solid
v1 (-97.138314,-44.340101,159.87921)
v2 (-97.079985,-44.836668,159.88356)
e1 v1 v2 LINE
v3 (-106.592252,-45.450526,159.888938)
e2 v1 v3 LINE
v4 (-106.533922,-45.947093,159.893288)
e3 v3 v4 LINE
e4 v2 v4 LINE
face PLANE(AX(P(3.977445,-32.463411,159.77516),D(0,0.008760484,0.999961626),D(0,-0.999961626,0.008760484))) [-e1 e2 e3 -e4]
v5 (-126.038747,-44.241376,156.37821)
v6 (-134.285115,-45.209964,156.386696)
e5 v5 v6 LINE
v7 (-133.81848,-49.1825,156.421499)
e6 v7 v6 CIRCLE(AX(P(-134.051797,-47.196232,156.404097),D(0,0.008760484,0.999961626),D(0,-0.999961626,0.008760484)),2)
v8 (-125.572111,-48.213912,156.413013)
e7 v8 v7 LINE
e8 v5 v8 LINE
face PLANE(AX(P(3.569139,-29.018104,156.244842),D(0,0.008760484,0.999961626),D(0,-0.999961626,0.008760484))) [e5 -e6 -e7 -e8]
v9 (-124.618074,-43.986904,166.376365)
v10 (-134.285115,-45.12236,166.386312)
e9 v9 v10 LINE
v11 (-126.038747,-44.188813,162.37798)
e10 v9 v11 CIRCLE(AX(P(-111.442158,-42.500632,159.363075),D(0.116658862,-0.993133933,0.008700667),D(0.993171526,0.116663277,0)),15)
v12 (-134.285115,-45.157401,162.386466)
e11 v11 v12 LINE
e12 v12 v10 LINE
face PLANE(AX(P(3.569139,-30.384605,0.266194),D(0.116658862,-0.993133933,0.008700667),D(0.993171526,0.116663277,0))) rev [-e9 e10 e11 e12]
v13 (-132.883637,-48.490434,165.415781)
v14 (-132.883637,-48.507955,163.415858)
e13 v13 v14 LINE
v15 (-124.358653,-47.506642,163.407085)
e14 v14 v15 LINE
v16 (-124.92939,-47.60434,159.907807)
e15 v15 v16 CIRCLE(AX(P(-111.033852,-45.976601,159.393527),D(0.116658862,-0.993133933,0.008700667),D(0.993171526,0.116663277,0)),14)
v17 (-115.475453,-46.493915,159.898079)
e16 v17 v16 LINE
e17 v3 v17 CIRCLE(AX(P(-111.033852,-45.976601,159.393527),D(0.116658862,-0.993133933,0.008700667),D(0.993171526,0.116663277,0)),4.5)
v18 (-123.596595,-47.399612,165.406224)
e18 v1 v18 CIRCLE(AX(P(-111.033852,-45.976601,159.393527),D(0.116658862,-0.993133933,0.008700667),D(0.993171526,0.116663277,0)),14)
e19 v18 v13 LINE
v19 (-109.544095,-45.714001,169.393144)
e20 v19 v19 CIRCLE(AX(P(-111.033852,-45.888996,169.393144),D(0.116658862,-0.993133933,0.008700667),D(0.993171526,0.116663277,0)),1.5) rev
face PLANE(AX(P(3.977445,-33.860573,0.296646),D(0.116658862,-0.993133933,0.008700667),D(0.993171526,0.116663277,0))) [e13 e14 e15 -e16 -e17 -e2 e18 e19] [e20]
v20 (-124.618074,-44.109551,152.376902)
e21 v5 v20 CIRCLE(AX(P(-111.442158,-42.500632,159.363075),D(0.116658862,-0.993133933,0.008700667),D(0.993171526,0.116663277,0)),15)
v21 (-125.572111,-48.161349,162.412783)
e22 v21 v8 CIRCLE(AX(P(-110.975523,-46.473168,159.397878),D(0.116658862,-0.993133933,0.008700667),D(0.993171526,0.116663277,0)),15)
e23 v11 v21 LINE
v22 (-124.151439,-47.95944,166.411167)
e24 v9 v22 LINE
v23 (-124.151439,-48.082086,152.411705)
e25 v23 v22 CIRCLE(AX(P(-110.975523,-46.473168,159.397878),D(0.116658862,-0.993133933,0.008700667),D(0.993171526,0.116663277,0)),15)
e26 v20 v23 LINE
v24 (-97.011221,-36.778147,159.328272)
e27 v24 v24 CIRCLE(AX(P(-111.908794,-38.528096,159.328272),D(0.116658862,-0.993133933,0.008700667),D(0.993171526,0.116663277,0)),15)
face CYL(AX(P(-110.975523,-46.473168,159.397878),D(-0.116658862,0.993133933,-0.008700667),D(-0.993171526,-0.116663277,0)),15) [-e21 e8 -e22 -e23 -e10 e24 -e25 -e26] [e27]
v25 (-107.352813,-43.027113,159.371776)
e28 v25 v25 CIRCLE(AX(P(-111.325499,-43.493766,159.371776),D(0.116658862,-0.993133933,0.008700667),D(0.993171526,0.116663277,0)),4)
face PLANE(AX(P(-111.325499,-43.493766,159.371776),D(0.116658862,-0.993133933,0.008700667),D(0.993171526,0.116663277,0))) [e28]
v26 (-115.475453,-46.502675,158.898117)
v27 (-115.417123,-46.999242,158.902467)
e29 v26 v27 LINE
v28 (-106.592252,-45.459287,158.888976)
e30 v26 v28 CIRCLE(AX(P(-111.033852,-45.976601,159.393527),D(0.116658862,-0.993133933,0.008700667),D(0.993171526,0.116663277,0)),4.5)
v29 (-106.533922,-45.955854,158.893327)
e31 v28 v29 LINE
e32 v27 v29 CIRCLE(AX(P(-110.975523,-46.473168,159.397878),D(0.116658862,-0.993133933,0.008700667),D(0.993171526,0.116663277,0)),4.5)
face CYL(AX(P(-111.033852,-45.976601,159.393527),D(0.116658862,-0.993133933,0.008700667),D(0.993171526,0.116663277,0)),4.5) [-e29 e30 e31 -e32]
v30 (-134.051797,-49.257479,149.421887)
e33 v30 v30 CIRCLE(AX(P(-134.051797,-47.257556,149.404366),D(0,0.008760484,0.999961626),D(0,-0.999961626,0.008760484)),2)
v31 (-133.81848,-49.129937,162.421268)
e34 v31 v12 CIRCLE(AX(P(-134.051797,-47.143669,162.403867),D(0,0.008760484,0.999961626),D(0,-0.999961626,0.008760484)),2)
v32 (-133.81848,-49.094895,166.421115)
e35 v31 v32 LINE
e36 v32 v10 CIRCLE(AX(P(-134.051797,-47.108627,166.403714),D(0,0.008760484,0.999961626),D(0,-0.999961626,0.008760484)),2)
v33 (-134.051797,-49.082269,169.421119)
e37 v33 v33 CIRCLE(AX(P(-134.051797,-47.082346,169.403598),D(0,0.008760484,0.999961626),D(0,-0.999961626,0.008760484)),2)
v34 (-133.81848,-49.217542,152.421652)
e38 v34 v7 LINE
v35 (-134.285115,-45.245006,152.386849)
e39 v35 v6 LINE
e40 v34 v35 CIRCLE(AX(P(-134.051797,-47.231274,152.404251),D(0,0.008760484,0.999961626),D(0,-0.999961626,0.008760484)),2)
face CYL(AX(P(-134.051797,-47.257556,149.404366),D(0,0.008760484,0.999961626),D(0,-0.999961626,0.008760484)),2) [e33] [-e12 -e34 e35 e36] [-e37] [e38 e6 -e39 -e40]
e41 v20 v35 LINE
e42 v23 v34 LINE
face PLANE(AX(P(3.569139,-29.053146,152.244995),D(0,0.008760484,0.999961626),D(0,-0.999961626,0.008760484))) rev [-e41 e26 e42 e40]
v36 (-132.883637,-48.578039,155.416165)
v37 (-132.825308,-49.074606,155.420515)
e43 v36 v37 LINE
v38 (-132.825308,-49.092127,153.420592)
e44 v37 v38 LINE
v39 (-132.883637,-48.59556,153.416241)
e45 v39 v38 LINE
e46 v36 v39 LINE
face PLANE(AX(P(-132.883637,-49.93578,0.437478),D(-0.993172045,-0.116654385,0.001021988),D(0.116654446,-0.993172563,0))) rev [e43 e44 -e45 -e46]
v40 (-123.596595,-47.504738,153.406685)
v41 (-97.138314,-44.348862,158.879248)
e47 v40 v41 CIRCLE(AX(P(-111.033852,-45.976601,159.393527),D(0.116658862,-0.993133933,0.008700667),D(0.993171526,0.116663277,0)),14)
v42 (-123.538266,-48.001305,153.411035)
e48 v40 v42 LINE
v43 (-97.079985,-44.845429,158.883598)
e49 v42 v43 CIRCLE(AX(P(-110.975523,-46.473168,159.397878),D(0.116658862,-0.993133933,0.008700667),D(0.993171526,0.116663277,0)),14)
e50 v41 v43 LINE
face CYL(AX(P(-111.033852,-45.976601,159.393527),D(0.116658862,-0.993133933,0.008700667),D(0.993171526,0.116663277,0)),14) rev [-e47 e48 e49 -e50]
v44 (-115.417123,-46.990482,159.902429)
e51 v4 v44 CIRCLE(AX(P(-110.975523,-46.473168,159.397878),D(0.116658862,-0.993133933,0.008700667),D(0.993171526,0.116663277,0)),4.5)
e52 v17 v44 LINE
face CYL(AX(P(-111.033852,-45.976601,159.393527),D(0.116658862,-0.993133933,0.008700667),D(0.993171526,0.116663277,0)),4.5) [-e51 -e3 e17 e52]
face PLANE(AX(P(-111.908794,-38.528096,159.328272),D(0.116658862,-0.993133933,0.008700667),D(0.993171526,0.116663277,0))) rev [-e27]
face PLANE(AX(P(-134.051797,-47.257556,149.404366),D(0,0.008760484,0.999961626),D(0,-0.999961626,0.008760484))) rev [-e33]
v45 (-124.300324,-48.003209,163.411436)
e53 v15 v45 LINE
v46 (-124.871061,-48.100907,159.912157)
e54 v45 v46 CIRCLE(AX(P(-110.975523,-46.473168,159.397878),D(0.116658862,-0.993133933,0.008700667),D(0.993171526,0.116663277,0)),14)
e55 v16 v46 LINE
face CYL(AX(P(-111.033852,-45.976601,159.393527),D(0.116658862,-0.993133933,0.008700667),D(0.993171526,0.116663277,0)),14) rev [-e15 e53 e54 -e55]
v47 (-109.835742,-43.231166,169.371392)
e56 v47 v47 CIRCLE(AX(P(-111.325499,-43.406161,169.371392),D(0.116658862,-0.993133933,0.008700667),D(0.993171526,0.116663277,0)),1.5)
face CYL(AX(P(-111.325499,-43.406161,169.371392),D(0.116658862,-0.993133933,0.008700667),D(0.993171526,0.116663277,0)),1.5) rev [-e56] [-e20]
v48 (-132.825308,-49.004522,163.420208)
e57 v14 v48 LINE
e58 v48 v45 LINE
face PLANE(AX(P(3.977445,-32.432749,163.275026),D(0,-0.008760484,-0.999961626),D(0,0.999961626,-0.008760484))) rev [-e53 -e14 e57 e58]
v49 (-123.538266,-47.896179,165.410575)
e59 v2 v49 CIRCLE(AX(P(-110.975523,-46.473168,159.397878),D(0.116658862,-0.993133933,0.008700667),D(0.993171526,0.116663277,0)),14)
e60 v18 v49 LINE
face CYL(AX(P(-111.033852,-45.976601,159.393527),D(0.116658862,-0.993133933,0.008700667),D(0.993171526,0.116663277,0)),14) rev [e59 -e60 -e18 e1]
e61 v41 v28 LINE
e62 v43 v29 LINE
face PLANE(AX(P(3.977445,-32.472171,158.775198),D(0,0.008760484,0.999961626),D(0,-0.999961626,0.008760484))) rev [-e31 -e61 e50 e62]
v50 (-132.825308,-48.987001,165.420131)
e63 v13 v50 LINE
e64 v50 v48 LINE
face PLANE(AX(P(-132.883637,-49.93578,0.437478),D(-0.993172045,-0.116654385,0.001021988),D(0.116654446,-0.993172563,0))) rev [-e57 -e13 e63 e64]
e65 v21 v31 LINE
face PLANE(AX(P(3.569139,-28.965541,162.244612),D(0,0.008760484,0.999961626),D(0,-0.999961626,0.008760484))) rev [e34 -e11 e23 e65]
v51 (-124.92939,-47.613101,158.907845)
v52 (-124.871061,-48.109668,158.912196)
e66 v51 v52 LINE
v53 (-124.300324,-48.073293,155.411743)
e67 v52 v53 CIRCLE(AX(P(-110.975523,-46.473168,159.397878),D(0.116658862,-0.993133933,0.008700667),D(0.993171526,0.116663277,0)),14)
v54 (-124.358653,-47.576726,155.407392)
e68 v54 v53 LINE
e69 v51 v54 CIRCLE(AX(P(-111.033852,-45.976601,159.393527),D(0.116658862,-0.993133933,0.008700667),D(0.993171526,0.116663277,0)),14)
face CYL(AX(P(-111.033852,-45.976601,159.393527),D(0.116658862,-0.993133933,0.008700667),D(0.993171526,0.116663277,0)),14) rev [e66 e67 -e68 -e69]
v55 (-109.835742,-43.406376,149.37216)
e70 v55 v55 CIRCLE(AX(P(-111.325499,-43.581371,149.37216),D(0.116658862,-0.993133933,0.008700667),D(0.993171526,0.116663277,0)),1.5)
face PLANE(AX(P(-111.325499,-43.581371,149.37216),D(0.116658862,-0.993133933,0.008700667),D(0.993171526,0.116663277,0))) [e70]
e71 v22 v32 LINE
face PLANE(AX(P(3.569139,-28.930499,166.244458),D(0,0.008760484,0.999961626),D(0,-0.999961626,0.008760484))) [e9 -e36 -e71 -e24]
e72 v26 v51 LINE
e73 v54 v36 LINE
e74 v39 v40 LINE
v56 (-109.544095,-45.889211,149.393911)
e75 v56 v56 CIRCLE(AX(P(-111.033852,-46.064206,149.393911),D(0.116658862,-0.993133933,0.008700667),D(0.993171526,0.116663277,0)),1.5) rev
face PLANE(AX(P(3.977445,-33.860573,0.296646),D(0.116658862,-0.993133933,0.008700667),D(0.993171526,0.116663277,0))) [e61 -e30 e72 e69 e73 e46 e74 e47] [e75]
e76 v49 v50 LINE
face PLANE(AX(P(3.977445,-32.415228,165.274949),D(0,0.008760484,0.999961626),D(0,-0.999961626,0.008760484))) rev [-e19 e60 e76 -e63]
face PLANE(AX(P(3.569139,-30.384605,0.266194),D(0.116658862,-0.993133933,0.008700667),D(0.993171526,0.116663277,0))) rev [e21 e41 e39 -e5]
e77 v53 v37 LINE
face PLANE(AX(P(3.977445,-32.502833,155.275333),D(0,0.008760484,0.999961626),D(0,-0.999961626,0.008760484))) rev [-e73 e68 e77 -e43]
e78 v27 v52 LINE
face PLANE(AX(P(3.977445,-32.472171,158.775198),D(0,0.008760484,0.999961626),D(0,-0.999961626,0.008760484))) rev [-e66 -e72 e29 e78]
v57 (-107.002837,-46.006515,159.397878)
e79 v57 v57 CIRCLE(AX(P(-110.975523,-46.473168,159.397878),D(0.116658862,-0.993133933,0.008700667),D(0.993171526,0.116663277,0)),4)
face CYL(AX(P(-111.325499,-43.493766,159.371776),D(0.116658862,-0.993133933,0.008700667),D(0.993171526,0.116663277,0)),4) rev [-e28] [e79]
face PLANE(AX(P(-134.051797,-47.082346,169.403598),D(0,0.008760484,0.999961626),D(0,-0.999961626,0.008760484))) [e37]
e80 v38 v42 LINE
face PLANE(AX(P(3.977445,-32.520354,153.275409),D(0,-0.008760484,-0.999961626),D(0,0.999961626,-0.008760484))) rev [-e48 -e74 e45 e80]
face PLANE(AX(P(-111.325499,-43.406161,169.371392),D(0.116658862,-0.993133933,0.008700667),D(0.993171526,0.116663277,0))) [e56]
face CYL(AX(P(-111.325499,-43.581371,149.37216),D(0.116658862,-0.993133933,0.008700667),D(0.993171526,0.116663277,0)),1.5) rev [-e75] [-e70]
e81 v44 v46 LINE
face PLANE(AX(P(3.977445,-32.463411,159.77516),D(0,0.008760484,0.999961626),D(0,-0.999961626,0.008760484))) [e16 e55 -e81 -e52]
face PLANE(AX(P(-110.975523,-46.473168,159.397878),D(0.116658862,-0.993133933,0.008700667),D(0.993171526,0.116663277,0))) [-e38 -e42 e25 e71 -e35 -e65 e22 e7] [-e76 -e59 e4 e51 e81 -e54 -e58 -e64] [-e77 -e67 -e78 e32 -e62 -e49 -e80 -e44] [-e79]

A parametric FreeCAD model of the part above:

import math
import FreeCAD as App
import Part
import Sketcher


def add_polygon(sketch, points):
    """Adds a closed chain of lines whose ends are joined by coincident constraints."""
    first, n = sketch.GeometryCount, len(points)
    for a, b in zip(points, points[1:] + points[:1]):
        sketch.addGeometry(Part.LineSegment(App.Vector(*a, 0), App.Vector(*b, 0)), False)
    for i in range(n):
        sketch.addConstraint(Sketcher.Constraint("Coincident", first + i, 2, first + (i + 1) % n, 1))

doc = App.newDocument("Part")
body = doc.addObject("PartDesign::Body", "Body")

sketch1 = body.newObject("Sketcher::SketchObject", "Sketch")
sketch1.Placement = App.Placement(App.Vector(3.102504, -26.412069, 0.231391), App.Rotation(App.Vector(0.993172045, 0.116654385, -0.001021988), App.Vector(0, 0.008760483, 0.999961627), App.Vector(0.116658862, -0.993133933, 0.008700667), "ZXY"))
sketch1.addGeometry(Part.Circle(App.Vector(-116, 159, 0), App.Vector(0, 0, 1), 15), False)
sketch1.addConstraint(Sketcher.Constraint("Diameter", 0, 30.0))
sketch1.addConstraint(Sketcher.Constraint("DistanceX", 0, 3, -1, 1, 115.801988))
sketch1.addConstraint(Sketcher.Constraint("DistanceY", -1, 1, 0, 3, 158.984634))
pad1 = body.newObject("PartDesign::Pad", "Pad")
pad1.Profile = sketch1
pad1.Length = 8

sketch2 = body.newObject("Sketcher::SketchObject", "Sketch001")
sketch2.Placement = App.Placement(App.Vector(4.035775, -34.35714, 0.300997), App.Rotation(App.Vector(0.993172045, 0.116654385, -0.001021988), App.Vector(0, 0.008760483, 0.999961627), App.Vector(0.116658862, -0.993133933, 0.008700667), "ZXY"))
sketch2.addGeometry(Part.Circle(App.Vector(-115.8, 159, 0), App.Vector(0, 0, 1), 4), False)
sketch2.addGeometry(Part.Circle(App.Vector(-115.8, 169, 0), App.Vector(0, 0, 1), 1.5), False)
sketch2.addGeometry(Part.Circle(App.Vector(-115.8, 149, 0), App.Vector(0, 0, 1), 1.5), False)
sketch2.addConstraint(Sketcher.Constraint("Equal", 1, 2))
sketch2.addConstraint(Sketcher.Constraint("Vertical", 0, 3, 1, 3))
sketch2.addConstraint(Sketcher.Constraint("Vertical", 1, 3, 2, 3))
sketch2.addConstraint(Sketcher.Constraint("Diameter", 0, 8.0))
sketch2.addConstraint(Sketcher.Constraint("Diameter", 1, 3.0))
sketch2.addConstraint(Sketcher.Constraint("DistanceY", 0, 3, 1, 3, 10.0))
sketch2.addConstraint(Sketcher.Constraint("DistanceY", 2, 3, 0, 3, 10.0))
sketch2.addConstraint(Sketcher.Constraint("DistanceX", 0, 3, -1, 1, 115.801988))
sketch2.addConstraint(Sketcher.Constraint("DistanceY", -1, 1, 0, 3, 158.984634))
pocket1 = body.newObject("PartDesign::Pocket", "Pocket")
pocket1.Profile = sketch2
pocket1.Length = 3

sketch3 = body.newObject("Sketcher::SketchObject", "Sketch002")
sketch3.Placement = App.Placement(App.Vector(3.569139, -30.384605, 0.266194), App.Rotation(App.Vector(0.993172045, 0.116654385, -0.001021988), App.Vector(0, 0.008760483, 0.999961627), App.Vector(0.116658862, -0.993133933, 0.008700667), "ZXY"))
add_polygon(sketch3, [(-140.8, 162), (-125, 162), (-125, 166), (-140.8, 166)])
add_polygon(sketch3, [(-140.8, 156), (-140.8, 152), (-125, 152), (-125, 156)])
sketch3.addConstraint(Sketcher.Constraint("Horizontal", 0))
sketch3.addConstraint(Sketcher.Constraint("Vertical", 1))
sketch3.addConstraint(Sketcher.Constraint("Horizontal", 2))
sketch3.addConstraint(Sketcher.Constraint("Vertical", 3))
sketch3.addConstraint(Sketcher.Constraint("Vertical", 4))
sketch3.addConstraint(Sketcher.Constraint("Horizontal", 5))
sketch3.addConstraint(Sketcher.Constraint("Vertical", 6))
sketch3.addConstraint(Sketcher.Constraint("Horizontal", 7))
sketch3.addConstraint(Sketcher.Constraint("Vertical", 3, 2, 4, 2))
sketch3.addConstraint(Sketcher.Constraint("Vertical", 1, 2, 5, 2))
sketch3.addConstraint(Sketcher.Constraint("Equal", 3, 4))
sketch3.addConstraint(Sketcher.Constraint("DistanceY", 1, 1, 1, 2, 4.0))
sketch3.addConstraint(Sketcher.Constraint("DistanceY", 4, 2, 3, 2, 10.0))
sketch3.addConstraint(Sketcher.Constraint("DistanceX", 0, 1, 0, 2, 15.785077))
sketch3.addConstraint(Sketcher.Constraint("DistanceX", 0, 2, -1, 1, 125.016912))
sketch3.addConstraint(Sketcher.Constraint("DistanceY", -1, 1, 0, 2, 161.984634))
pad2 = body.newObject("PartDesign::Pad", "Pad001")
pad2.Profile = sketch3
pad2.Length = 4

sketch4 = body.newObject("Sketcher::SketchObject", "Sketch003")
sketch4.Placement = App.Placement(App.Vector(0, 1.392782, 158.978533), App.Rotation(App.Vector(1, 0, 0), App.Vector(0, 0.999961626, -0.008760484), App.Vector(0, 0.008760484, 0.999961626), "ZXY"))
sketch4.addGeometry(Part.Circle(App.Vector(-134.1, -48.6, 0), App.Vector(0, 0, 1), 2), False)
sketch4.addConstraint(Sketcher.Constraint("Diameter", 0, 4.0))
sketch4.addConstraint(Sketcher.Constraint("DistanceX", 0, 3, -1, 1, 134.051797))
sketch4.addConstraint(Sketcher.Constraint("DistanceY", 0, 3, -1, 1, 48.564597))
pad3 = body.newObject("PartDesign::Pad", "Pad002")
pad3.Profile = sketch4
pad3.Type = "TwoLengths"
pad3.Length = 10
pad3.Length2 = 10

sketch5 = body.newObject("Sketcher::SketchObject", "Sketch004")
sketch5.Placement = App.Placement(App.Vector(0, 1.480387, 168.978149), App.Rotation(App.Vector(1, 0, 0), App.Vector(0, 0.999961626, -0.008760484), App.Vector(0, 0.008760484, 0.999961626), "ZXY"))
sketch5.addGeometry(Part.LineSegment(App.Vector(-137.2, -53.5, 0), App.Vector(-133.5, -53.1, 0)), False)
sketch5.addGeometry(Part.LineSegment(App.Vector(-133.5, -53.1, 0), App.Vector(-133.8, -50.6, 0)), False)
sketch5.addGeometry(Part.ArcOfCircle(Part.Circle(App.Vector(-134.1, -48.6, 0), App.Vector(0, 0, 1), 2), math.radians(97), math.radians(277)), False)
sketch5.addGeometry(Part.LineSegment(App.Vector(-134.3, -46.6, 0), App.Vector(-134.5, -44.9, 0)), False)
sketch5.addGeometry(Part.LineSegment(App.Vector(-134.5, -44.9, 0), App.Vector(-138.2, -45.4, 0)), False)
sketch5.addGeometry(Part.LineSegment(App.Vector(-138.2, -45.4, 0), App.Vector(-137.2, -53.5, 0)), False)
sketch5.addConstraint(Sketcher.Constraint("Coincident", 0, 2, 1, 1))
sketch5.addConstraint(Sketcher.Constraint("Coincident", 1, 2, 2, 2))
sketch5.addConstraint(Sketcher.Constraint("Coincident", 2, 1, 3, 1))
sketch5.addConstraint(Sketcher.Constraint("Coincident", 3, 2, 4, 1))
sketch5.addConstraint(Sketcher.Constraint("Coincident", 4, 2, 5, 1))
sketch5.addConstraint(Sketcher.Constraint("Coincident", 5, 2, 0, 1))
sketch5.addConstraint(Sketcher.Constraint("Perpendicular", 0, 1))
sketch5.addConstraint(Sketcher.Constraint("Parallel", 1, 3))
sketch5.addConstraint(Sketcher.Constraint("Perpendicular", 3, 4))
sketch5.addConstraint(Sketcher.Constraint("Perpendicular", 4, 5))
sketch5.addConstraint(Sketcher.Constraint("Equal", 0, 4))
sketch5.addConstraint(Sketcher.Constraint("Radius", 2, 2.0))
sketch5.addConstraint(Sketcher.Constraint("DistanceY", 0, 2, -1, 1, 53.093699))
sketch5.addConstraint(Sketcher.Constraint("DistanceX", 4, 2, 3, 2, 3.6723))
sketch5.addConstraint(Sketcher.Constraint("Distance", 1, 2.560239))
sketch5.addConstraint(Sketcher.Constraint("Distance", 3, 1.66665))
sketch5.addConstraint(Sketcher.Constraint("DistanceX", 1, 2, -1, 1, 133.81848))
sketch5.addConstraint(Sketcher.Constraint("DistanceY", 1, 2, -1, 1, 50.550941))
sketch5.addConstraint(Sketcher.Constraint("DistanceX", 2, 3, -1, 1, 134.051797))
pocket2 = body.newObject("PartDesign::Pocket", "Pocket001")
pocket2.Profile = sketch5
pocket2.Length = 26

sketch6 = body.newObject("Sketcher::SketchObject", "Sketch005")
sketch6.Placement = App.Placement(App.Vector(4.035775, -34.35714, 0.300997), App.Rotation(App.Vector(0.993172045, 0.116654385, -0.001021988), App.Vector(0, 0.008760483, 0.999961627), App.Vector(0.116658862, -0.993133933, 0.008700667), "ZXY"))
sketch6.addGeometry(Part.LineSegment(App.Vector(-111.329852, 159.484634, 0), App.Vector(-101.81092, 159.484634, 0)), False)
sketch6.addGeometry(Part.ArcOfCircle(Part.Circle(App.Vector(-115.801988, 158.984634, 0), App.Vector(0, 0, 1), 14), math.radians(2.046713), math.radians(154.623066)), False)
sketch6.addGeometry(Part.LineSegment(App.Vector(-128.451099, 164.984634, 0), App.Vector(-137.801988, 164.984634, 0)), False)
sketch6.addGeometry(Part.LineSegment(App.Vector(-137.801988, 164.984634, 0), App.Vector(-137.801988, 162.984634, 0)), False)
sketch6.addGeometry(Part.LineSegment(App.Vector(-137.801988, 162.984634, 0), App.Vector(-129.218396, 162.984634, 0)), False)
sketch6.addGeometry(Part.ArcOfCircle(Part.Circle(App.Vector(-115.801988, 158.984634, 0), App.Vector(0, 0, 1), 14), math.radians(163.39845), math.radians(177.953287)), False)
sketch6.addGeometry(Part.LineSegment(App.Vector(-129.793057, 159.484634, 0), App.Vector(-120.274124, 159.484634, 0)), False)
sketch6.addGeometry(Part.ArcOfCircle(Part.Circle(App.Vector(-115.801988, 158.984634, 0), App.Vector(0, 0, 1), 4.5), math.radians(6.37937), math.radians(173.62063)), False)
sketch6.addGeometry(Part.Circle(App.Vector(-115.801988, 168.984634, 0), App.Vector(0, 0, 1), 1.5), False)
sketch6.addGeometry(Part.ArcOfCircle(Part.Circle(App.Vector(-115.801988, 158.984634, 0), App.Vector(0, 0, 1), 14), math.radians(-154.623066), math.radians(-2.046713)), False)
sketch6.addGeometry(Part.LineSegment(App.Vector(-101.81092, 158.484634, 0), App.Vector(-111.329852, 158.484634, 0)), False)
sketch6.addGeometry(Part.ArcOfCircle(Part.Circle(App.Vector(-115.801988, 158.984634, 0), App.Vector(0, 0, 1), 4.5), math.radians(-173.62063), math.radians(-6.37937)), False)
sketch6.addGeometry(Part.LineSegment(App.Vector(-120.274124, 158.484634, 0), App.Vector(-129.793057, 158.484634, 0)), False)
sketch6.addGeometry(Part.ArcOfCircle(Part.Circle(App.Vector(-115.801988, 158.984634, 0), App.Vector(0, 0, 1), 14), math.radians(-177.953287), math.radians(-163.39845)), False)
sketch6.addGeometry(Part.LineSegment(App.Vector(-129.218396, 154.984634, 0), App.Vector(-137.801988, 154.984634, 0)), False)
sketch6.addGeometry(Part.LineSegment(App.Vector(-137.801988, 154.984634, 0), App.Vector(-137.801988, 152.984634, 0)), False)
sketch6.addGeometry(Part.LineSegment(App.Vector(-137.801988, 152.984634, 0), App.Vector(-128.451099, 152.984634, 0)), False)
sketch6.addGeometry(Part.Circle(App.Vector(-115.801988, 148.984634, 0), App.Vector(0, 0, 1), 1.5), False)
sketch6.addConstraint(Sketcher.Constraint("Coincident", 0, 2, 1, 1))
sketch6.addConstraint(Sketcher.Constraint("Coincident", 1, 2, 2, 1))
sketch6.addConstraint(Sketcher.Constraint("Coincident", 2, 2, 3, 1))
sketch6.addConstraint(Sketcher.Constraint("Coincident", 3, 2, 4, 1))
sketch6.addConstraint(Sketcher.Constraint("Coincident", 4, 2, 5, 1))
sketch6.addConstraint(Sketcher.Constraint("Coincident", 5, 2, 6, 1))
sketch6.addConstraint(Sketcher.Constraint("Coincident", 6, 2, 7, 2))
sketch6.addConstraint(Sketcher.Constraint("Coincident", 7, 1, 0, 1))
sketch6.addConstraint(Sketcher.Constraint("Coincident", 9, 2, 10, 1))
sketch6.addConstraint(Sketcher.Constraint("Coincident", 10, 2, 11, 2))
sketch6.addConstraint(Sketcher.Constraint("Coincident", 11, 1, 12, 1))
sketch6.addConstraint(Sketcher.Constraint("Coincident", 12, 2, 13, 1))
sketch6.addConstraint(Sketcher.Constraint("Coincident", 13, 2, 14, 1))
sketch6.addConstraint(Sketcher.Constraint("Coincident", 14, 2, 15, 1))
sketch6.addConstraint(Sketcher.Constraint("Coincident", 15, 2, 16, 1))
sketch6.addConstraint(Sketcher.Constraint("Coincident", 16, 2, 9, 1))
sketch6.addConstraint(Sketcher.Constraint("Horizontal", 0))
sketch6.addConstraint(Sketcher.Constraint("Horizontal", 2))
sketch6.addConstraint(Sketcher.Constraint("Vertical", 3))
sketch6.addConstraint(Sketcher.Constraint("Horizontal", 4))
sketch6.addConstraint(Sketcher.Constraint("Horizontal", 6))
sketch6.addConstraint(Sketcher.Constraint("Horizontal", 10))
sketch6.addConstraint(Sketcher.Constraint("Horizontal", 12))
sketch6.addConstraint(Sketcher.Constraint("Horizontal", 14))
sketch6.addConstraint(Sketcher.Constraint("Vertical", 15))
sketch6.addConstraint(Sketcher.Constraint("Horizontal", 16))
sketch6.addConstraint(Sketcher.Constraint("Coincident", 5, 3, 1, 3))
sketch6.addConstraint(Sketcher.Constraint("Coincident", 7, 3, 1, 3))
sketch6.addConstraint(Sketcher.Constraint("Coincident", 9, 3, 1, 3))
sketch6.addConstraint(Sketcher.Constraint("Coincident", 11, 3, 1, 3))
sketch6.addConstraint(Sketcher.Constraint("Coincident", 13, 3, 1, 3))
sketch6.addConstraint(Sketcher.Constraint("Equal", 1, 5))
sketch6.addConstraint(Sketcher.Constraint("Equal", 5, 9))
sketch6.addConstraint(Sketcher.Constraint("Equal", 7, 11))
sketch6.addConstraint(Sketcher.Constraint("Equal", 9, 13))
sketch6.addConstraint(Sketcher.Constraint("Equal", 8, 17))
sketch6.addConstraint(Sketcher.Constraint("Horizontal", 0, 2, 5, 2))
sketch6.addConstraint(Sketcher.Constraint("Horizontal", 10, 2, 11, 1))
sketch6.addConstraint(Sketcher.Constraint("Vertical", 7, 3, 8, 3))
sketch6.addConstraint(Sketcher.Constraint("Vertical", 13, 3, 17, 3))
sketch6.addConstraint(Sketcher.Constraint("Vertical", 0, 2, 9, 2))
sketch6.addConstraint(Sketcher.Constraint("Vertical", 4, 2, 13, 2))
sketch6.addConstraint(Sketcher.Constraint("Vertical", 3, 2, 14, 2))
sketch6.addConstraint(Sketcher.Constraint("Vertical", 1, 2, 16, 2))
sketch6.addConstraint(Sketcher.Constraint("Diameter", 8, 3.0))
sketch6.addConstraint(Sketcher.Constraint("Radius", 1, 14.0))
sketch6.addConstraint(Sketcher.Constraint("Radius", 7, 4.5))
sketch6.addConstraint(Sketcher.Constraint("DistanceY", 3, 2, 3, 1, 2.0))
sketch6.addConstraint(Sketcher.Constraint("DistanceY", 1, 3, 8, 3, 10.0))
sketch6.addConstraint(Sketcher.Constraint("DistanceY", 17, 3, 1, 3, 10.0))
sketch6.addConstraint(Sketcher.Constraint("DistanceY", 1, 2, 8, 3, 4.0))
sketch6.addConstraint(Sketcher.Constraint("DistanceX", 2, 2, 8, 3, 22.0))
sketch6.addConstraint(Sketcher.Constraint("DistanceY", 9, 2, 0, 2, 1.0))
sketch6.addConstraint(Sketcher.Constraint("DistanceX", 1, 2, -1, 1, 128.451099))
sketch6.addConstraint(Sketcher.Constraint("DistanceY", -1, 1, 1, 3, 158.984634))
pocket3 = body.newObject("PartDesign::Pocket", "Pocket002")
pocket3.Profile = sketch6
pocket3.Length = 0.5

doc.recompute()
